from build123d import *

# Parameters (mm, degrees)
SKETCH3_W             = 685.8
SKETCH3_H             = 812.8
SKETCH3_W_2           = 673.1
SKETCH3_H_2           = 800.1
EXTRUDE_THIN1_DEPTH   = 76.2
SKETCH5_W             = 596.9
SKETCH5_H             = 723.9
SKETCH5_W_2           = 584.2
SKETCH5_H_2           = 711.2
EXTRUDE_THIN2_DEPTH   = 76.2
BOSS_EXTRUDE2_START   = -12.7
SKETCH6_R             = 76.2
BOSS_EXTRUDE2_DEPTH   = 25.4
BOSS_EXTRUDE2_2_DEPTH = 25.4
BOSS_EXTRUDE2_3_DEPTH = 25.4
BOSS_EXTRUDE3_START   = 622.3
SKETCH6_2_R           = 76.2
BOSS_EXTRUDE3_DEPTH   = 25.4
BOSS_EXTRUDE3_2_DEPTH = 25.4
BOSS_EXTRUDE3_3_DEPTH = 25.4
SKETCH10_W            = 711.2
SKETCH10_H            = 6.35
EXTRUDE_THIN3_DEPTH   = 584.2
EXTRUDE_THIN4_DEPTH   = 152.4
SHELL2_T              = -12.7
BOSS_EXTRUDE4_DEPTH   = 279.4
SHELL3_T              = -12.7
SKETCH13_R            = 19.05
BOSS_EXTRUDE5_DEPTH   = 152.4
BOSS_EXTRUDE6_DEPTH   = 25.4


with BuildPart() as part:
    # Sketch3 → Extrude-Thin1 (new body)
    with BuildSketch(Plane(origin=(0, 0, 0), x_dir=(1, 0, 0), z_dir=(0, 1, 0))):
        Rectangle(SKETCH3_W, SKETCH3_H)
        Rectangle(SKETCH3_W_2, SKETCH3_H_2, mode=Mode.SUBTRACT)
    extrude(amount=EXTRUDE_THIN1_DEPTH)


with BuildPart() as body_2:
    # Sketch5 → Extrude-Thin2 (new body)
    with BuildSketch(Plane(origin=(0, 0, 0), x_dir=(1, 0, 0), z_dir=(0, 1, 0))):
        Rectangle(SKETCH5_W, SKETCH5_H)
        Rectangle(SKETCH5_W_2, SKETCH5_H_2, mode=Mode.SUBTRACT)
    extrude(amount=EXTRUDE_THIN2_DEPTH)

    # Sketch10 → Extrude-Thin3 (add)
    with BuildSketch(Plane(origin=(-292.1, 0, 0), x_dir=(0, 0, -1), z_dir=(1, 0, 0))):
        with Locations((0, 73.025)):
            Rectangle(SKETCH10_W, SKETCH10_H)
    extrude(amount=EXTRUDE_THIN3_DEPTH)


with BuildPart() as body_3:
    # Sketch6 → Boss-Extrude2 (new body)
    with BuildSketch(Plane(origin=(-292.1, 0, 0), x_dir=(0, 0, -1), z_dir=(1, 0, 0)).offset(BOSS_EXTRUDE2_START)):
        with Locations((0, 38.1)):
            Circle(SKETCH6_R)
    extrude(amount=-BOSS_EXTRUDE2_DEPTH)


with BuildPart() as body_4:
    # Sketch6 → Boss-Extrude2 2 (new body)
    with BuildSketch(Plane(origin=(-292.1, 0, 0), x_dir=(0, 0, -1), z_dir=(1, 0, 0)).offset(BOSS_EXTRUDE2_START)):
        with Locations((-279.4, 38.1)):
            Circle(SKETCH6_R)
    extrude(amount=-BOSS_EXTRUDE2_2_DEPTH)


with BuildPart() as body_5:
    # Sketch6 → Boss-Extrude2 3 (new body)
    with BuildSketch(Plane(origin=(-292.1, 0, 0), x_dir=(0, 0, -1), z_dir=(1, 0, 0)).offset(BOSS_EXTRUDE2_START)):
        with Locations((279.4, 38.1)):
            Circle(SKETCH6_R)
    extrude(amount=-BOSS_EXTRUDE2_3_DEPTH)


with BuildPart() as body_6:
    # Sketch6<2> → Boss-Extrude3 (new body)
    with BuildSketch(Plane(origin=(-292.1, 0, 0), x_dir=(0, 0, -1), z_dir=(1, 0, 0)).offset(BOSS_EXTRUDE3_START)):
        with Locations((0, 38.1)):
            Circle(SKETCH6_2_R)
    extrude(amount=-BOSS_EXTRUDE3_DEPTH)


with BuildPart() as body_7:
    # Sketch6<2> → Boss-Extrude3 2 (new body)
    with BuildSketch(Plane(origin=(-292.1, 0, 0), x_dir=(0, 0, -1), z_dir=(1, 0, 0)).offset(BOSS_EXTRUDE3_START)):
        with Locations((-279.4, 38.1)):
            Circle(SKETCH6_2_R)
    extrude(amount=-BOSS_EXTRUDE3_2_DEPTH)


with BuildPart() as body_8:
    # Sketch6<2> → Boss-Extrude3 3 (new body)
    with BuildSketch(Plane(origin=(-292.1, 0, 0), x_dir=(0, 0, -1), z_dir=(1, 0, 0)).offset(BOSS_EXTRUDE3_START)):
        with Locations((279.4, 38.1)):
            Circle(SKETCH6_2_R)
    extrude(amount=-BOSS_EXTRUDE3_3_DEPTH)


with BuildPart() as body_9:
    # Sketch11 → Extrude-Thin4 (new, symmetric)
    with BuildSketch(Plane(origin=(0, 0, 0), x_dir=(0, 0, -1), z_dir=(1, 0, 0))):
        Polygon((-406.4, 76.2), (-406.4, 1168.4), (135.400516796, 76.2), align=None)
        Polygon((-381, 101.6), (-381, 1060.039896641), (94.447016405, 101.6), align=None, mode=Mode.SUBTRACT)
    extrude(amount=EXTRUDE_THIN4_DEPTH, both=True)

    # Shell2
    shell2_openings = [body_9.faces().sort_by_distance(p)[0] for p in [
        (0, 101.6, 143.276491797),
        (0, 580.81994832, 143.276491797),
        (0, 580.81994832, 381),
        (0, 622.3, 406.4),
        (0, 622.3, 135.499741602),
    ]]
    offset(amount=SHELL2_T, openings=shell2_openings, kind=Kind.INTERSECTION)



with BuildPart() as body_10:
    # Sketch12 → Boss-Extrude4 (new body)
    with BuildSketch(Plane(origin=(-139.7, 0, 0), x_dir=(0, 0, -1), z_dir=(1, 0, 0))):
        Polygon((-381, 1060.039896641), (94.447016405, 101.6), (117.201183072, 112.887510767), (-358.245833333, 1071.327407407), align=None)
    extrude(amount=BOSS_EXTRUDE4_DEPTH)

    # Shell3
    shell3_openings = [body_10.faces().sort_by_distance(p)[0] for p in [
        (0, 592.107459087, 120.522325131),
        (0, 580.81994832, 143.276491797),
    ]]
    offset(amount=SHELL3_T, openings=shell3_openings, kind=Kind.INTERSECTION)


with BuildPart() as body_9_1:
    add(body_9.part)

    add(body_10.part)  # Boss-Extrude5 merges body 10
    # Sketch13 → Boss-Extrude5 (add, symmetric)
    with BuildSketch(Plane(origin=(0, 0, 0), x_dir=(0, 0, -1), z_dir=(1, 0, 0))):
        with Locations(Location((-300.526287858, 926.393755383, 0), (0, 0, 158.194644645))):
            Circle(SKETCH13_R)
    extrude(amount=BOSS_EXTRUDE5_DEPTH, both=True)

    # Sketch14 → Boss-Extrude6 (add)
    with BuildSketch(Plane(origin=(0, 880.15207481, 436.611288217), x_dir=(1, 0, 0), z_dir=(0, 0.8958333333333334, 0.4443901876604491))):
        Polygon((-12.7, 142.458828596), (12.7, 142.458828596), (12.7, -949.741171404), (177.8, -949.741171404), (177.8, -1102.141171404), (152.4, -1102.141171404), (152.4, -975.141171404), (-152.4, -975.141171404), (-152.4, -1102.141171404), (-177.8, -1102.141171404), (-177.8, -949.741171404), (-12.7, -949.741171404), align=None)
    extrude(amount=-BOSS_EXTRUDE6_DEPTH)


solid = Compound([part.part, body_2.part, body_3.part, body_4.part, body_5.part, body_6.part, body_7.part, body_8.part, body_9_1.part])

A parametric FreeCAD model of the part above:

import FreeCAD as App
import Part
import Sketcher
Q = App.Units.Quantity


def faces_at(feature, points):
    """Names of the faces that lie closest to the given points."""
    faces = feature.Shape.Faces
    near = lambda p: min(range(len(faces)), key=lambda i: faces[i].distToShape(Part.Vertex(*p))[0])
    return sorted({f"Face{near(p) + 1}" for p in points})

doc = App.newDocument("Part")
body = doc.addObject("PartDesign::Body", "Body")

# Sketch on XZ plane
sketch1 = body.newObject("Sketcher::SketchObject", "Sketch")
sketch1.AttachmentSupport = (doc.getObject("XZ_Plane"), [""])
sketch1.MapMode = "FlatFace"
sketch1.addGeometry([
    Part.LineSegment(App.Vector(-342.9, -406.4, 0), App.Vector(-342.9, 406.4, 0)),  # 0
    Part.LineSegment(App.Vector(-342.9, 406.4, 0), App.Vector(342.9, 406.4, 0)),  # 1
    Part.LineSegment(App.Vector(342.9, 406.4, 0), App.Vector(342.9, -406.4, 0)),  # 2
    Part.LineSegment(App.Vector(342.9, -406.4, 0), App.Vector(-342.9, -406.4, 0)),  # 3
    Part.LineSegment(App.Vector(336.55, 400.05, 0), App.Vector(-336.55, 400.05, 0)),  # 4
    Part.LineSegment(App.Vector(-336.55, 400.05, 0), App.Vector(-336.55, -400.05, 0)),  # 5
    Part.LineSegment(App.Vector(-336.55, -400.05, 0), App.Vector(336.55, -400.05, 0)),  # 6
    Part.LineSegment(App.Vector(336.55, -400.05, 0), App.Vector(336.55, 400.05, 0)),  # 7
], False)
sketch1.addConstraint([
    Sketcher.Constraint("Coincident", 0, 2, 1, 1),
    Sketcher.Constraint("Coincident", 1, 2, 2, 1),
    Sketcher.Constraint("Coincident", 2, 2, 3, 1),
    Sketcher.Constraint("Coincident", 3, 2, 0, 1),
    Sketcher.Constraint("Coincident", 4, 2, 5, 1),
    Sketcher.Constraint("Coincident", 5, 2, 6, 1),
    Sketcher.Constraint("Coincident", 6, 2, 7, 1),
    Sketcher.Constraint("Coincident", 7, 2, 4, 1),
    Sketcher.Constraint("Vertical", 0),
    Sketcher.Constraint("Horizontal", 1),
    Sketcher.Constraint("Vertical", 2),
    Sketcher.Constraint("Horizontal", 3),
    Sketcher.Constraint("Horizontal", 4),
    Sketcher.Constraint("Vertical", 5),
    Sketcher.Constraint("Horizontal", 6),
    Sketcher.Constraint("Vertical", 7),
    Sketcher.Constraint("Symmetric", 0, 2, 2, 2, -1, 1),
    Sketcher.Constraint("Symmetric", 4, 2, 6, 2, -1, 1),
    Sketcher.Constraint("DistanceX", 1, 1, 1, 2, Q("27 in")),
    Sketcher.Constraint("DistanceY", 0, 1, 0, 2, Q("32 in")),
    Sketcher.Constraint("DistanceX", 4, 2, 4, 1, Q("26.5 in")),
    Sketcher.Constraint("DistanceY", 5, 2, 5, 1, Q("31.5 in")),
])
pad1 = body.newObject("PartDesign::Pad", "Pad")
pad1.Profile = sketch1
pad1.Length = Q("3 in")
pad1.Reversed = True
body2 = doc.addObject("PartDesign::Body", "Body001")

# Sketch on XZ plane
sketch2 = body2.newObject("Sketcher::SketchObject", "Sketch001")
sketch2.AttachmentSupport = (doc.getObject("XZ_Plane001"), [""])
sketch2.MapMode = "FlatFace"
sketch2.addGeometry([
    Part.LineSegment(App.Vector(-298.45, -361.95, 0), App.Vector(-298.45, 361.95, 0)),  # 0
    Part.LineSegment(App.Vector(-298.45, 361.95, 0), App.Vector(298.45, 361.95, 0)),  # 1
    Part.LineSegment(App.Vector(298.45, 361.95, 0), App.Vector(298.45, -361.95, 0)),  # 2
    Part.LineSegment(App.Vector(298.45, -361.95, 0), App.Vector(-298.45, -361.95, 0)),  # 3
    Part.LineSegment(App.Vector(292.1, 355.6, 0), App.Vector(-292.1, 355.6, 0)),  # 4
    Part.LineSegment(App.Vector(-292.1, 355.6, 0), App.Vector(-292.1, -355.6, 0)),  # 5
    Part.LineSegment(App.Vector(-292.1, -355.6, 0), App.Vector(292.1, -355.6, 0)),  # 6
    Part.LineSegment(App.Vector(292.1, -355.6, 0), App.Vector(292.1, 355.6, 0)),  # 7
], False)
sketch2.addConstraint([
    Sketcher.Constraint("Coincident", 0, 2, 1, 1),
    Sketcher.Constraint("Coincident", 1, 2, 2, 1),
    Sketcher.Constraint("Coincident", 2, 2, 3, 1),
    Sketcher.Constraint("Coincident", 3, 2, 0, 1),
    Sketcher.Constraint("Coincident", 4, 2, 5, 1),
    Sketcher.Constraint("Coincident", 5, 2, 6, 1),
    Sketcher.Constraint("Coincident", 6, 2, 7, 1),
    Sketcher.Constraint("Coincident", 7, 2, 4, 1),
    Sketcher.Constraint("Vertical", 0),
    Sketcher.Constraint("Horizontal", 1),
    Sketcher.Constraint("Vertical", 2),
    Sketcher.Constraint("Horizontal", 3),
    Sketcher.Constraint("Horizontal", 4),
    Sketcher.Constraint("Vertical", 5),
    Sketcher.Constraint("Horizontal", 6),
    Sketcher.Constraint("Vertical", 7),
    Sketcher.Constraint("Symmetric", 0, 2, 2, 2, -1, 1),
    Sketcher.Constraint("Symmetric", 4, 2, 6, 2, -1, 1),
    Sketcher.Constraint("DistanceX", 4, 2, 4, 1, Q("23 in")),
    Sketcher.Constraint("DistanceY", 5, 2, 5, 1, Q("28 in")),
    Sketcher.Constraint("DistanceX", 1, 1, 1, 2, Q("23.5 in")),
    Sketcher.Constraint("DistanceY", 0, 1, 0, 2, Q("28.5 in")),
])
pad2 = body2.newObject("PartDesign::Pad", "Pad001")
pad2.Profile = sketch2
pad2.Length = Q("3 in")
pad2.Reversed = True

# Sketch on YZ plane
sketch3 = body2.newObject("Sketcher::SketchObject", "Sketch002")
sketch3.AttachmentSupport = (doc.getObject("YZ_Plane001"), [""])
sketch3.MapMode = "FlatFace"
sketch3.AttachmentOffset = App.Placement(App.Vector(0, 0, -11.5 * 25.4), App.Rotation())
sketch3.addGeometry([
    Part.LineSegment(App.Vector(76.2, 355.6, 0), App.Vector(69.85, 355.6, 0)),
    Part.LineSegment(App.Vector(69.85, 355.6, 0), App.Vector(69.85, -355.6, 0)),
    Part.LineSegment(App.Vector(69.85, -355.6, 0), App.Vector(76.2, -355.6, 0)),
    Part.LineSegment(App.Vector(76.2, -355.6, 0), App.Vector(76.2, 355.6, 0)),
], False)
sketch3.addConstraint([
    Sketcher.Constraint("Coincident", 0, 2, 1, 1),
    Sketcher.Constraint("Coincident", 1, 2, 2, 1),
    Sketcher.Constraint("Coincident", 2, 2, 3, 1),
    Sketcher.Constraint("Coincident", 3, 2, 0, 1),
    Sketcher.Constraint("Horizontal", 0),
    Sketcher.Constraint("Vertical", 1),
    Sketcher.Constraint("Horizontal", 2),
    Sketcher.Constraint("Vertical", 3),
    Sketcher.Constraint("DistanceY", 1, 2, 1, 1, Q("28 in")),
    Sketcher.Constraint("DistanceY", -1, 1, 0, 2, Q("14 in")),
    Sketcher.Constraint("DistanceX", -1, 1, 2, 2, Q("3 in")),
    Sketcher.Constraint("DistanceX", 0, 2, 0, 1, Q("0.25 in")),
])
pad3 = body2.newObject("PartDesign::Pad", "Pad002")
pad3.Profile = sketch3
pad3.Length = Q("23 in")
body3 = doc.addObject("PartDesign::Body", "Body002")

# Sketch on YZ plane
sketch4 = body3.newObject("Sketcher::SketchObject", "Sketch003")
sketch4.AttachmentSupport = (doc.getObject("YZ_Plane002"), [""])
sketch4.MapMode = "FlatFace"
sketch4.AttachmentOffset = App.Placement(App.Vector(0, 0, -12 * 25.4), App.Rotation())
sketch4.addGeometry(Part.Circle(App.Vector(38.1, 0, 0), App.Vector(0, 0, 1), 76.2), False)
sketch4.addConstraint([
    Sketcher.Constraint("PointOnObject", 0, 3, -1),
    Sketcher.Constraint("Diameter", 0, Q("6 in")),
    Sketcher.Constraint("DistanceX", -1, 1, 0, 3, Q("1.5 in")),
])
pad4 = body3.newObject("PartDesign::Pad", "Pad003")
pad4.Profile = sketch4
pad4.Length = Q("1 in")
pad4.Reversed = True
body4 = doc.addObject("PartDesign::Body", "Body003")

# Sketch on YZ plane
sketch5 = body4.newObject("Sketcher::SketchObject", "Sketch004")
sketch5.AttachmentSupport = (doc.getObject("YZ_Plane003"), [""])
sketch5.MapMode = "FlatFace"
sketch5.AttachmentOffset = App.Placement(App.Vector(0, 0, -12 * 25.4), App.Rotation())
sketch5.addGeometry(Part.Circle(App.Vector(38.1, 279.4, 0), App.Vector(0, 0, 1), 76.2), False)
sketch5.addConstraint([
    Sketcher.Constraint("Diameter", 0, Q("6 in")),
    Sketcher.Constraint("DistanceY", -1, 1, 0, 3, Q("11 in")),
    Sketcher.Constraint("DistanceX", -1, 1, 0, 3, Q("1.5 in")),
])
pad5 = body4.newObject("PartDesign::Pad", "Pad004")
pad5.Profile = sketch5
pad5.Length = Q("1 in")
pad5.Reversed = True
body5 = doc.addObject("PartDesign::Body", "Body004")

# Sketch on YZ plane
sketch6 = body5.newObject("Sketcher::SketchObject", "Sketch005")
sketch6.AttachmentSupport = (doc.getObject("YZ_Plane004"), [""])
sketch6.MapMode = "FlatFace"
sketch6.AttachmentOffset = App.Placement(App.Vector(0, 0, -12 * 25.4), App.Rotation())
sketch6.addGeometry(Part.Circle(App.Vector(38.1, -279.4, 0), App.Vector(0, 0, 1), 76.2), False)
sketch6.addConstraint([
    Sketcher.Constraint("Diameter", 0, Q("6 in")),
    Sketcher.Constraint("DistanceY", 0, 3, -1, 1, Q("11 in")),
    Sketcher.Constraint("DistanceX", -1, 1, 0, 3, Q("1.5 in")),
])
pad6 = body5.newObject("PartDesign::Pad", "Pad005")
pad6.Profile = sketch6
pad6.Length = Q("1 in")
pad6.Reversed = True
body6 = doc.addObject("PartDesign::Body", "Body005")

# Sketch on YZ plane
sketch7 = body6.newObject("Sketcher::SketchObject", "Sketch006")
sketch7.AttachmentSupport = (doc.getObject("YZ_Plane005"), [""])
sketch7.MapMode = "FlatFace"
sketch7.AttachmentOffset = App.Placement(App.Vector(0, 0, 13 * 25.4), App.Rotation())
sketch7.addGeometry(Part.Circle(App.Vector(38.1, 0, 0), App.Vector(0, 0, 1), 76.2), False)
sketch7.addConstraint([
    Sketcher.Constraint("PointOnObject", 0, 3, -1),
    Sketcher.Constraint("Diameter", 0, Q("6 in")),
    Sketcher.Constraint("DistanceX", -1, 1, 0, 3, Q("1.5 in")),
])
pad7 = body6.newObject("PartDesign::Pad", "Pad006")
pad7.Profile = sketch7
pad7.Length = Q("1 in")
pad7.Reversed = True
body7 = doc.addObject("PartDesign::Body", "Body006")

# Sketch on YZ plane
sketch8 = body7.newObject("Sketcher::SketchObject", "Sketch007")
sketch8.AttachmentSupport = (doc.getObject("YZ_Plane006"), [""])
sketch8.MapMode = "FlatFace"
sketch8.AttachmentOffset = App.Placement(App.Vector(0, 0, 13 * 25.4), App.Rotation())
sketch8.addGeometry(Part.Circle(App.Vector(38.1, 279.4, 0), App.Vector(0, 0, 1), 76.2), False)
sketch8.addConstraint([
    Sketcher.Constraint("Diameter", 0, Q("6 in")),
    Sketcher.Constraint("DistanceY", -1, 1, 0, 3, Q("11 in")),
    Sketcher.Constraint("DistanceX", -1, 1, 0, 3, Q("1.5 in")),
])
pad8 = body7.newObject("PartDesign::Pad", "Pad007")
pad8.Profile = sketch8
pad8.Length = Q("1 in")
pad8.Reversed = True
body8 = doc.addObject("PartDesign::Body", "Body007")

# Sketch on YZ plane
sketch9 = body8.newObject("Sketcher::SketchObject", "Sketch008")
sketch9.AttachmentSupport = (doc.getObject("YZ_Plane007"), [""])
sketch9.MapMode = "FlatFace"
sketch9.AttachmentOffset = App.Placement(App.Vector(0, 0, 13 * 25.4), App.Rotation())
sketch9.addGeometry(Part.Circle(App.Vector(38.1, -279.4, 0), App.Vector(0, 0, 1), 76.2), False)
sketch9.addConstraint([
    Sketcher.Constraint("Diameter", 0, Q("6 in")),
    Sketcher.Constraint("DistanceY", 0, 3, -1, 1, Q("11 in")),
    Sketcher.Constraint("DistanceX", -1, 1, 0, 3, Q("1.5 in")),
])
pad9 = body8.newObject("PartDesign::Pad", "Pad008")
pad9.Profile = sketch9
pad9.Length = Q("1 in")
pad9.Reversed = True
body9 = doc.addObject("PartDesign::Body", "Body008")

# Sketch on YZ plane
sketch10 = body9.newObject("Sketcher::SketchObject", "Sketch009")
sketch10.AttachmentSupport = (doc.getObject("YZ_Plane008"), [""])
sketch10.MapMode = "FlatFace"
sketch10.addGeometry([
    Part.LineSegment(App.Vector(1168.4, 406.4, 0), App.Vector(76.2, 406.4, 0)),  # 0
    Part.LineSegment(App.Vector(76.2, 406.4, 0), App.Vector(76.2, -135.400517, 0)),  # 1
    Part.LineSegment(App.Vector(76.2, -135.400517, 0), App.Vector(1168.4, 406.4, 0)),  # 2
    Part.LineSegment(App.Vector(101.6, 381, 0), App.Vector(1060.039897, 381, 0)),  # 3
    Part.LineSegment(App.Vector(1060.039897, 381, 0), App.Vector(101.6, -94.447016, 0)),  # 4
    Part.LineSegment(App.Vector(101.6, -94.447016, 0), App.Vector(101.6, 381, 0)),  # 5
], False)
sketch10.addConstraint([
    Sketcher.Constraint("Coincident", 0, 2, 1, 1),
    Sketcher.Constraint("Coincident", 1, 2, 2, 1),
    Sketcher.Constraint("Coincident", 2, 2, 0, 1),
    Sketcher.Constraint("Coincident", 3, 2, 4, 1),
    Sketcher.Constraint("Coincident", 4, 2, 5, 1),
    Sketcher.Constraint("Coincident", 5, 2, 3, 1),
    Sketcher.Constraint("Horizontal", 0),
    Sketcher.Constraint("Vertical", 1),
    Sketcher.Constraint("Horizontal", 3),
    Sketcher.Constraint("Vertical", 5),
    Sketcher.Constraint("Parallel", 2, 4),
    Sketcher.Constraint("DistanceX", 0, 2, 0, 1, Q("43 in")),
    Sketcher.Constraint("Distance", 2, Q("48 in")),
    Sketcher.Constraint("DistanceX", -1, 1, 0, 2, Q("3 in")),
    Sketcher.Constraint("DistanceY", -1, 1, 0, 2, Q("16 in")),
    Sketcher.Constraint("DistanceY", -1, 1, 3, 2, Q("15 in")),
    Sketcher.Constraint("DistanceX", -1, 1, 4, 2, Q("4 in")),
    Sketcher.Constraint("DistanceY", 1, 2, 4, 2, Q("40.9535 mm")),
])
pad10 = body9.newObject("PartDesign::Pad", "Pad009")
pad10.Profile = sketch10
pad10.Length = Q("12 in")
pad10.Midplane = True
doc.recompute()

thickness = body9.newObject("PartDesign::Thickness", "Thickness")
thickness.Base = (pad10, faces_at(pad10, [
    (0, 101.6, 143.276),
    (0, 580.82, 143.276),
    (0, 580.82, 381),
    (0, 622.3, 406.4),
    (0, 622.3, 135.5),
]))
thickness.Value = Q("0.5 in")
thickness.Reversed = True
thickness.Join = "Intersection"
body10 = doc.addObject("PartDesign::Body", "Body009")

# Sketch on YZ plane
sketch11 = body10.newObject("Sketcher::SketchObject", "Sketch010")
sketch11.AttachmentSupport = (doc.getObject("YZ_Plane009"), [""])
sketch11.MapMode = "FlatFace"
sketch11.AttachmentOffset = App.Placement(App.Vector(0, 0, -5.5 * 25.4), App.Rotation())
sketch11.addGeometry([
    Part.LineSegment(App.Vector(1060.039897, 381, 0), App.Vector(101.6, -94.447016, 0)),
    Part.LineSegment(App.Vector(101.6, -94.447016, 0), App.Vector(112.887511, -117.201183, 0)),
    Part.LineSegment(App.Vector(112.887511, -117.201183, 0), App.Vector(1071.327407, 358.245833, 0)),
    Part.LineSegment(App.Vector(1071.327407, 358.245833, 0), App.Vector(1060.039897, 381, 0)),
], False)
sketch11.addConstraint([
    Sketcher.Constraint("Coincident", 0, 2, 1, 1),
    Sketcher.Constraint("Coincident", 1, 2, 2, 1),
    Sketcher.Constraint("Coincident", 2, 2, 3, 1),
    Sketcher.Constraint("Coincident", 3, 2, 0, 1),
    Sketcher.Constraint("Perpendicular", 0, 1),
    Sketcher.Constraint("Perpendicular", 1, 2),
    Sketcher.Constraint("Perpendicular", 2, 3),
    Sketcher.Constraint("Distance", 1, Q("1 in")),
    Sketcher.Constraint("DistanceX", -1, 1, 0, 2, Q("4 in")),
    Sketcher.Constraint("DistanceY", -1, 1, 3, 2, Q("15 in")),
    Sketcher.Constraint("DistanceX", -1, 1, 1, 2, Q("112.887511 mm")),
    Sketcher.Constraint("DistanceY", 0, 2, 2, 2, Q("452.69285 mm")),
])
pad11 = body10.newObject("PartDesign::Pad", "Pad010")
pad11.Profile = sketch11
pad11.Length = Q("11 in")
doc.recompute()

thickness2 = body10.newObject("PartDesign::Thickness", "Thickness001")
thickness2.Base = (pad11, faces_at(pad11, [(0, 592.107, 120.522), (0, 580.82, 143.276)]))
thickness2.Value = Q("0.5 in")
thickness2.Reversed = True
thickness2.Join = "Intersection"
doc.recompute()

boolean = body9.newObject("PartDesign::Boolean", "Boolean")
boolean.Type = "Fuse"
boolean.addObjects([body10])

# Sketch on YZ plane
sketch12 = body9.newObject("Sketcher::SketchObject", "Sketch011")
sketch12.AttachmentSupport = (doc.getObject("YZ_Plane008"), [""])
sketch12.MapMode = "FlatFace"
sketch12.addGeometry(Part.Circle(App.Vector(926.393755, 300.526288, 0), App.Vector(0, 0, 1), 19.05), False)
sketch12.addConstraint([
    Sketcher.Constraint("Diameter", 0, Q("1.5 in")),
    Sketcher.Constraint("DistanceX", -1, 1, 0, 3, Q("926.393755 mm")),
    Sketcher.Constraint("DistanceY", -1, 1, 0, 3, Q("300.526288 mm")),
])
pad12 = body9.newObject("PartDesign::Pad", "Pad011")
pad12.Profile = sketch12
pad12.Length = Q("12 in")
pad12.Midplane = True

# Sketch on an angled plane
sketch13 = body9.newObject("Sketcher::SketchObject", "Sketch012")
sketch13.Placement = App.Placement(App.Vector(0, 880.152075, 436.611288), App.Rotation(App.Vector(1, 0, 0), App.Vector(0, 0.444390188, -0.895833333), App.Vector(0, 0.895833333, 0.444390188), "ZXY"))
sketch13.addGeometry([
    Part.LineSegment(App.Vector(12.7, 142.458829, 0), App.Vector(-12.7, 142.458829, 0)),  # 0
    Part.LineSegment(App.Vector(-12.7, 142.458829, 0), App.Vector(-12.7, -949.741171, 0)),  # 1
    Part.LineSegment(App.Vector(-12.7, -949.741171, 0), App.Vector(-177.8, -949.741171, 0)),  # 2
    Part.LineSegment(App.Vector(-177.8, -949.741171, 0), App.Vector(-177.8, -1102.141171, 0)),  # 3
    Part.LineSegment(App.Vector(-177.8, -1102.141171, 0), App.Vector(-152.4, -1102.141171, 0)),  # 4
    Part.LineSegment(App.Vector(-152.4, -1102.141171, 0), App.Vector(-152.4, -975.141171, 0)),  # 5
    Part.LineSegment(App.Vector(-152.4, -975.141171, 0), App.Vector(152.4, -975.141171, 0)),  # 6
    Part.LineSegment(App.Vector(152.4, -975.141171, 0), App.Vector(152.4, -1102.141171, 0)),  # 7
    Part.LineSegment(App.Vector(152.4, -1102.141171, 0), App.Vector(177.8, -1102.141171, 0)),  # 8
    Part.LineSegment(App.Vector(177.8, -1102.141171, 0), App.Vector(177.8, -949.741171, 0)),  # 9
    Part.LineSegment(App.Vector(177.8, -949.741171, 0), App.Vector(12.7, -949.741171, 0)),  # 10
    Part.LineSegment(App.Vector(12.7, -949.741171, 0), App.Vector(12.7, 142.458829, 0)),  # 11
], False)
sketch13.addConstraint([
    Sketcher.Constraint("Coincident", 0, 2, 1, 1),
    Sketcher.Constraint("Coincident", 1, 2, 2, 1),
    Sketcher.Constraint("Coincident", 2, 2, 3, 1),
    Sketcher.Constraint("Coincident", 3, 2, 4, 1),
    Sketcher.Constraint("Coincident", 4, 2, 5, 1),
    Sketcher.Constraint("Coincident", 5, 2, 6, 1),
    Sketcher.Constraint("Coincident", 6, 2, 7, 1),
    Sketcher.Constraint("Coincident", 7, 2, 8, 1),
    Sketcher.Constraint("Coincident", 8, 2, 9, 1),
    Sketcher.Constraint("Coincident", 9, 2, 10, 1),
    Sketcher.Constraint("Coincident", 10, 2, 11, 1),
    Sketcher.Constraint("Coincident", 11, 2, 0, 1),
    Sketcher.Constraint("Horizontal", 0),
    Sketcher.Constraint("Vertical", 1),
    Sketcher.Constraint("Horizontal", 2),
    Sketcher.Constraint("Vertical", 3),
    Sketcher.Constraint("Horizontal", 4),
    Sketcher.Constraint("Vertical", 5),
    Sketcher.Constraint("Horizontal", 6),
    Sketcher.Constraint("Vertical", 7),
    Sketcher.Constraint("Horizontal", 8),
    Sketcher.Constraint("Vertical", 9),
    Sketcher.Constraint("Horizontal", 10),
    Sketcher.Constraint("Vertical", 11),
    Sketcher.Constraint("Symmetric", 4, 2, 7, 2, -2),
    Sketcher.Constraint("Symmetric", 2, 2, 9, 2, -2),
    Sketcher.Constraint("Equal", 0, 4),
    Sketcher.Constraint("Equal", 2, 10),
    Sketcher.Constraint("DistanceX", 0, 2, 0, 1, Q("1 in")),
    Sketcher.Constraint("DistanceX", 6, 1, 6, 2, Q("12 in")),
    Sketcher.Constraint("DistanceY", 1, 2, 1, 1, Q("43 in")),
    Sketcher.Constraint("DistanceY", 3, 2, 3, 1, Q("6 in")),
    Sketcher.Constraint("DistanceY", 5, 1, 5, 2, Q("5 in")),
    Sketcher.Constraint("DistanceY", -1, 1, 0, 2, Q("142.458829 mm")),
])
pad13 = body9.newObject("PartDesign::Pad", "Pad012")
pad13.Profile = sketch13
pad13.Length = Q("1 in")
pad13.Reversed = True

doc.recompute()
